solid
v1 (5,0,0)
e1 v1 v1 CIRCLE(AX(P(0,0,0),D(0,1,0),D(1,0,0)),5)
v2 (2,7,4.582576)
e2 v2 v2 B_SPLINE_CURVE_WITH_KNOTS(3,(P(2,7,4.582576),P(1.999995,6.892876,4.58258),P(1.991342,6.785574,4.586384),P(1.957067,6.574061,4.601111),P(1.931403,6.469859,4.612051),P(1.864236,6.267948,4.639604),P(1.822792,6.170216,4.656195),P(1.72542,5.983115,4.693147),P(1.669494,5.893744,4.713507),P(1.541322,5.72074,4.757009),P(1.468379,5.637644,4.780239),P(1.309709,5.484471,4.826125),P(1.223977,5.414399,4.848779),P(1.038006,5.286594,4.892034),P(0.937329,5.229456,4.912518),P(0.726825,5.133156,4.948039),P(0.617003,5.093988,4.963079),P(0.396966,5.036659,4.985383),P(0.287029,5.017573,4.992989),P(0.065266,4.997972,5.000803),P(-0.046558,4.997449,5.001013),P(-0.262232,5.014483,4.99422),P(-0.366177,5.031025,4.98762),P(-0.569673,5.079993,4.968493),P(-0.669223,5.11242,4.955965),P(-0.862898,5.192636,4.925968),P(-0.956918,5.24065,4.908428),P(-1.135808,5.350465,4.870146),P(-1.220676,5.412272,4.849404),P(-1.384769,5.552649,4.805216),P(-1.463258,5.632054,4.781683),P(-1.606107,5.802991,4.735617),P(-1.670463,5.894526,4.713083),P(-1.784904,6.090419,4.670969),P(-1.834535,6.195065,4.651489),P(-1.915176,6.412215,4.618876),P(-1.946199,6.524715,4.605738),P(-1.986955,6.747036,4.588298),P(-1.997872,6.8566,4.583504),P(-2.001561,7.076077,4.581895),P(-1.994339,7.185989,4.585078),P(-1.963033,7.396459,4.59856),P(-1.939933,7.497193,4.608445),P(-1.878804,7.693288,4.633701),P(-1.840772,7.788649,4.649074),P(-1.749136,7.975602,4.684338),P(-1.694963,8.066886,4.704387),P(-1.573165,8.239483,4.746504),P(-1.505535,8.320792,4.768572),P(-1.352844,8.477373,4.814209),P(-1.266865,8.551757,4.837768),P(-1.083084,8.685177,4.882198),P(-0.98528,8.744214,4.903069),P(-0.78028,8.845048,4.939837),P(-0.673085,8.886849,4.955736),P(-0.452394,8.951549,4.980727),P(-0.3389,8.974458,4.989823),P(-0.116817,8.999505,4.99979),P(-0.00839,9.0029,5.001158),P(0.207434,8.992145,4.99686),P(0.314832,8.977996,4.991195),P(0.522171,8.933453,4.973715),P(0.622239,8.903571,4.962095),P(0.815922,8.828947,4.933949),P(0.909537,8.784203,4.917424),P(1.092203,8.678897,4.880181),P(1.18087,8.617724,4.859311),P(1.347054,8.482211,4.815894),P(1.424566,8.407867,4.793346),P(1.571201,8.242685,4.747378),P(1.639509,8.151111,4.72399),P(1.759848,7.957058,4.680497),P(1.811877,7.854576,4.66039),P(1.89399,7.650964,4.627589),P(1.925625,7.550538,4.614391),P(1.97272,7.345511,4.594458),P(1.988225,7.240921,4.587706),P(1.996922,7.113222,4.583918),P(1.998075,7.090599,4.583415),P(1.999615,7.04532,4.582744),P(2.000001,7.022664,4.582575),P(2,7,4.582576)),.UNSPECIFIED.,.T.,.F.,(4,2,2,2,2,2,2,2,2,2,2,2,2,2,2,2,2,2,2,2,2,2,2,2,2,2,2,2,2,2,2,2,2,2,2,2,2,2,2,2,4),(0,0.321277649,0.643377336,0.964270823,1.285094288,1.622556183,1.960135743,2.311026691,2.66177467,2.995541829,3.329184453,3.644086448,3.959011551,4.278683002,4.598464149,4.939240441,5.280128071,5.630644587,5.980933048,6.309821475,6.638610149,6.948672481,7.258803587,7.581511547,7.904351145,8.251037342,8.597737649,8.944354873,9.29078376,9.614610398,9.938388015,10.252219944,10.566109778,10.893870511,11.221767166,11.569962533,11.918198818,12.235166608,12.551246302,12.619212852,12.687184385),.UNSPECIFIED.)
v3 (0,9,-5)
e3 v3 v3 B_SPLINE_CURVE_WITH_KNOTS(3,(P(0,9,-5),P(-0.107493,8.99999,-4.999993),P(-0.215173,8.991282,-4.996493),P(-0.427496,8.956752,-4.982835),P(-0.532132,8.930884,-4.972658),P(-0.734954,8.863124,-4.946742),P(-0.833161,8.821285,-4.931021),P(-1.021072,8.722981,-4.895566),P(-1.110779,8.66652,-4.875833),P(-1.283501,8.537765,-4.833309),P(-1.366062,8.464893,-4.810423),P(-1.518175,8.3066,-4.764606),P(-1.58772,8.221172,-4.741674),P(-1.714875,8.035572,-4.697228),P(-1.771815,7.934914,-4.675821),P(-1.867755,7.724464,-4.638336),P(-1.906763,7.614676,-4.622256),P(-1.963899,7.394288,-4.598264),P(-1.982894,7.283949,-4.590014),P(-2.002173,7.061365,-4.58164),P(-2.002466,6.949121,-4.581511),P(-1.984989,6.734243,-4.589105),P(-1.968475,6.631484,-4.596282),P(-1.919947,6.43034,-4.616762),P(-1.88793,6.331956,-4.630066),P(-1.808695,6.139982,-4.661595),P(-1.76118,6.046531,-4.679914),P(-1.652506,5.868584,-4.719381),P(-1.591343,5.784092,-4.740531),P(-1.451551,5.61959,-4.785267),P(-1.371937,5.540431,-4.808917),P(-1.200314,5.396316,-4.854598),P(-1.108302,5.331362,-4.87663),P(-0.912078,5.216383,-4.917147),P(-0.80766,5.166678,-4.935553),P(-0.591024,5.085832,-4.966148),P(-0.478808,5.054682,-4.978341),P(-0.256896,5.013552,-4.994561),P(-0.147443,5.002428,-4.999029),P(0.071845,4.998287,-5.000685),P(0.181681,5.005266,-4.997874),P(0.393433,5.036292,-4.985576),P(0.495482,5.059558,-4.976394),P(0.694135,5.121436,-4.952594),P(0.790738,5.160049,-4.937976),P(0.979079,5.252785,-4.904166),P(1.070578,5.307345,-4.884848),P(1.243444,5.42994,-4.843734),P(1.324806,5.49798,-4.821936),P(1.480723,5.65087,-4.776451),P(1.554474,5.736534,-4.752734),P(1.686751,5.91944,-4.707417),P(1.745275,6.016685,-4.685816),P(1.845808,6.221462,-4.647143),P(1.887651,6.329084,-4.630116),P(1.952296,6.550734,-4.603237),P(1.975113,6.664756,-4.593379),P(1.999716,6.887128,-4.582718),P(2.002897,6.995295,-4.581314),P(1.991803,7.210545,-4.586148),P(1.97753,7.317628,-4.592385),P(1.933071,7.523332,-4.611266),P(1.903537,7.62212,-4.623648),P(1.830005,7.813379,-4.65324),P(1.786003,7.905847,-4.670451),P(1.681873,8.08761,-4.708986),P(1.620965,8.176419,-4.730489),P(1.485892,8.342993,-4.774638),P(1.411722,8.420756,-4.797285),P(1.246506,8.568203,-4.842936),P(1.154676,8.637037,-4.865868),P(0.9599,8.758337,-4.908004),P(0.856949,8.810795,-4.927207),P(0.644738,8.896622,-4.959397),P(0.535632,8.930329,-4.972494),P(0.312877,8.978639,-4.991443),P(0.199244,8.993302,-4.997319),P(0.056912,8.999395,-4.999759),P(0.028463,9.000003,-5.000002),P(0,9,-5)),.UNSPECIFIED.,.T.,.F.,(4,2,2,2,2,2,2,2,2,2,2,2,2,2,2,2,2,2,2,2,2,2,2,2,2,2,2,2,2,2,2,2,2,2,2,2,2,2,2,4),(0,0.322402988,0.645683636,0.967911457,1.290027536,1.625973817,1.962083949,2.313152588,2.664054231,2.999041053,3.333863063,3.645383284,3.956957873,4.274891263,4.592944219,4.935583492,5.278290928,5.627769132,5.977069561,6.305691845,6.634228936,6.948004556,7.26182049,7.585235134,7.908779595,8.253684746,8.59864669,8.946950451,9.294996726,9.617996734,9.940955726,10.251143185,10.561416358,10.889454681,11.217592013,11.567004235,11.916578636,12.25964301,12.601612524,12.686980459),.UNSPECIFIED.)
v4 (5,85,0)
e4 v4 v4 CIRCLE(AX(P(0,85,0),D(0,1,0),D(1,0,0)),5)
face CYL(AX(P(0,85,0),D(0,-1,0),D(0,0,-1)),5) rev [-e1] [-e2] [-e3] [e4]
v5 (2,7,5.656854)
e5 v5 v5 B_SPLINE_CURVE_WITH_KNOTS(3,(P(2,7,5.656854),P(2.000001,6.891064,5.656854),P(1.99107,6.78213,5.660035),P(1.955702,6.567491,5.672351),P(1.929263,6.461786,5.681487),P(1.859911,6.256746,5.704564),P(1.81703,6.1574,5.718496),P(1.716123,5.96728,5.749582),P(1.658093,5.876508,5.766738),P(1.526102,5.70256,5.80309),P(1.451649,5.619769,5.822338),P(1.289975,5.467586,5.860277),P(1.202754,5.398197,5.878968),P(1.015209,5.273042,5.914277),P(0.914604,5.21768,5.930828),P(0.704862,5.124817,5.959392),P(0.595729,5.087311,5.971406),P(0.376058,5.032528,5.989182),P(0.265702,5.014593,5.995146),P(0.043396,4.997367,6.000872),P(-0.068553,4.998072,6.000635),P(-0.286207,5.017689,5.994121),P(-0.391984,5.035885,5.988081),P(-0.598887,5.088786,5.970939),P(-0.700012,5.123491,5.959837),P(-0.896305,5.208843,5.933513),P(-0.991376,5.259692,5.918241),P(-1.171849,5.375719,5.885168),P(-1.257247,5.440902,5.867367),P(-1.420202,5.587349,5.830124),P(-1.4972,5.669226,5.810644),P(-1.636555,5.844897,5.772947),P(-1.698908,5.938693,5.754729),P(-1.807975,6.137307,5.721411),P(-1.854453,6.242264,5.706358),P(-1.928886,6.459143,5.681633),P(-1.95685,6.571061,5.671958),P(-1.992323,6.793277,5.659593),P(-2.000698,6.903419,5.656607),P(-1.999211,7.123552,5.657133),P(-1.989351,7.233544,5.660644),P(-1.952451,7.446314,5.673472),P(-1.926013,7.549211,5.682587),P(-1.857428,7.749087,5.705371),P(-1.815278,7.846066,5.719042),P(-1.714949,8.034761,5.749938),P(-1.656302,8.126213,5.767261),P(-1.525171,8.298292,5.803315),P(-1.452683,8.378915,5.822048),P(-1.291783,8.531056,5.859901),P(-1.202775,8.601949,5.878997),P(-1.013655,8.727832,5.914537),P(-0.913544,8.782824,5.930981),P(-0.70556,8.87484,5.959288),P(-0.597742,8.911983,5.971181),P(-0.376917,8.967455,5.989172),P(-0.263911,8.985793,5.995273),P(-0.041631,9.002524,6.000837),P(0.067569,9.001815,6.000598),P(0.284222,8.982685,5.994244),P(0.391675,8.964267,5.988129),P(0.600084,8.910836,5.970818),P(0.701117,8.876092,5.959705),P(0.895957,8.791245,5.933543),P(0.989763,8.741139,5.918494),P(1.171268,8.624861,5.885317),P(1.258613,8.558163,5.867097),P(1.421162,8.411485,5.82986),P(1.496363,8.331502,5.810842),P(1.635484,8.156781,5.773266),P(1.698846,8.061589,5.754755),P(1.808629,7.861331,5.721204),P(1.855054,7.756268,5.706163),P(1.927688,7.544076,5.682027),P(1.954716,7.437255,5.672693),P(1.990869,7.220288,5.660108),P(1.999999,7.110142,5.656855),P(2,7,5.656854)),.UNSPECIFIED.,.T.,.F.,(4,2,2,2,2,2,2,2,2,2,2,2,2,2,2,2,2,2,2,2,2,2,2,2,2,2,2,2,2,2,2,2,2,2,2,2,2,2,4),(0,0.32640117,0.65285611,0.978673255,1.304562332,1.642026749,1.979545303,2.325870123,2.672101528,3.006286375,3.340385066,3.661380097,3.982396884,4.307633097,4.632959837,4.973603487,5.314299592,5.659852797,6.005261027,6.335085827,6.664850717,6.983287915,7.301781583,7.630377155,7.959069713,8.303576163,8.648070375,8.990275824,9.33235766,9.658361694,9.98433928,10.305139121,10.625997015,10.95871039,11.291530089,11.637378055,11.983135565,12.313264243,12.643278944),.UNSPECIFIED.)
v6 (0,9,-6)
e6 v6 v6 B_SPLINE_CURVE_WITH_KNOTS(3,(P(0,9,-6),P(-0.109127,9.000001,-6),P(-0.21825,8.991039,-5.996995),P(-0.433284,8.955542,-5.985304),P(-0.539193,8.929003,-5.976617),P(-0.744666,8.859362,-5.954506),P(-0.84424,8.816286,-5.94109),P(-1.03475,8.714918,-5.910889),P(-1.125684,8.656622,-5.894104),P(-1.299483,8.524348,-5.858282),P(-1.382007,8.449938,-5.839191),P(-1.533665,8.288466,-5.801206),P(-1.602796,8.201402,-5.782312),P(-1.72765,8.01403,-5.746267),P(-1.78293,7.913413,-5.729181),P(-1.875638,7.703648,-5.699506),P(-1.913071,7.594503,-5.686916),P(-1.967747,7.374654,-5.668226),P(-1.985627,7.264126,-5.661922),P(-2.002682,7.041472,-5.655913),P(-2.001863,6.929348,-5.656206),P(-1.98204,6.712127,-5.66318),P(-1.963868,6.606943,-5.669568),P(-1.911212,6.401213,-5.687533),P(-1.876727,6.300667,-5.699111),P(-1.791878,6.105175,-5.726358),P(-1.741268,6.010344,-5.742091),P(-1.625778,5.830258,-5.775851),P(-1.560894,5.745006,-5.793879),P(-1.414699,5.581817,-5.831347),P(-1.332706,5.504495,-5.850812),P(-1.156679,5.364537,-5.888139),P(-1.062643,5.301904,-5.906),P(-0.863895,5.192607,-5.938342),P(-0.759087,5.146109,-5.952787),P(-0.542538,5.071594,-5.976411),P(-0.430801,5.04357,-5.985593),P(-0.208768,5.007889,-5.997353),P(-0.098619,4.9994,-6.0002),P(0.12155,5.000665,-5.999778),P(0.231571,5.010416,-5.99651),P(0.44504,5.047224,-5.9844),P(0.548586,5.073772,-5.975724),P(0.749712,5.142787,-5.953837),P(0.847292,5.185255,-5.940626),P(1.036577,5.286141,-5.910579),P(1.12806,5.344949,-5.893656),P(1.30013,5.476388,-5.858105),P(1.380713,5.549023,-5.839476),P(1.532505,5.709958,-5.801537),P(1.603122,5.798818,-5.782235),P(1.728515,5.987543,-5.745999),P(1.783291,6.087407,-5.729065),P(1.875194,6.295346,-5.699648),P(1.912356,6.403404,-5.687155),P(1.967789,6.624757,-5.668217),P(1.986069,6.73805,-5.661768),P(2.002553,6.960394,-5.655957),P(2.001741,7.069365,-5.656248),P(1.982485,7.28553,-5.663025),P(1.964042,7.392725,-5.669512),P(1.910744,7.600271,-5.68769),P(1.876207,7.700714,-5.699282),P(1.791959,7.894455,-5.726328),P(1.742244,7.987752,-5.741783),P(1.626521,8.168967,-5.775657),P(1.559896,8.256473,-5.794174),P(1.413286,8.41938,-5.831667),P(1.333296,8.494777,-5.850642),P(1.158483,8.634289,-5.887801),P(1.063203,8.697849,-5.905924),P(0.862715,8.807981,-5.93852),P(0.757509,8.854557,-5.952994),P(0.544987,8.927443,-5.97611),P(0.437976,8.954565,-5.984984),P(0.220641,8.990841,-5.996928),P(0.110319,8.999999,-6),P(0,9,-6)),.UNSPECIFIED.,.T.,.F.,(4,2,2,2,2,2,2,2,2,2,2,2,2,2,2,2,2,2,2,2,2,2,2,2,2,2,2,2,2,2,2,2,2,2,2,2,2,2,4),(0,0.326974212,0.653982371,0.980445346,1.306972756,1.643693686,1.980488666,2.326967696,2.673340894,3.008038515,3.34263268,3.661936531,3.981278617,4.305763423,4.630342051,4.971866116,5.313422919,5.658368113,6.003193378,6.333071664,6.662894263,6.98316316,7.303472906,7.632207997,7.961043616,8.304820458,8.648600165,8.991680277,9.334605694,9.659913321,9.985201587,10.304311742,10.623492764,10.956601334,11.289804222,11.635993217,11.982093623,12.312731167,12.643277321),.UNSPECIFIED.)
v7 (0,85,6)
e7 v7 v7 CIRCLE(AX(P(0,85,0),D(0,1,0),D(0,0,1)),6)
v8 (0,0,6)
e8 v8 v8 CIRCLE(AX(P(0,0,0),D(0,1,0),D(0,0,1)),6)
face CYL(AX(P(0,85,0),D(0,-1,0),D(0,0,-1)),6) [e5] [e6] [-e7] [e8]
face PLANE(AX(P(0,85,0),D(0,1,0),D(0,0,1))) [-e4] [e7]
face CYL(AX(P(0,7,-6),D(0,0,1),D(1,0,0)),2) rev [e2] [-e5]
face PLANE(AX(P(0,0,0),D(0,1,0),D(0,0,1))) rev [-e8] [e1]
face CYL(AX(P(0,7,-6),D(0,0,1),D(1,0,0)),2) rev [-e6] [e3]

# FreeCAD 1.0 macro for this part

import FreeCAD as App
import Part
import Sketcher
from FreeCAD import Vector
Q = App.Units.Quantity

doc = App.newDocument("Part")
params = doc.addObject("Spreadsheet::Sheet", "Params")
for row, (alias, value) in enumerate([
    ("sketch1_diameter", "12 mm"),
    ("sketch1_diameter2", "10 mm"),
    ("pad1_length", "85 mm"),
    ("sketch2_diameter", "4 mm"),
], start=1):
    params.set(f"A{row}", alias)
    params.set(f"B{row}", "=" + value)
    params.setAlias(f"B{row}", alias)

body = doc.addObject("PartDesign::Body", "Body")

# Sketch on XZ plane
sketch1 = body.newObject("Sketcher::SketchObject", "Sketch")
sketch1.AttachmentSupport = (doc.getObject("XZ_Plane"), [""])
sketch1.MapMode = "FlatFace"
sketch1.addGeometry(Part.Circle(Vector(0, 0, 0), Vector(0, 0, 1), 6), False)
sketch1.addGeometry(Part.Circle(Vector(0, 0, 0), Vector(0, 0, 1), 5), False)
sketch1.addConstraint(Sketcher.Constraint("Coincident", 0, 3, -1, 1))
sketch1.addConstraint(Sketcher.Constraint("Coincident", 1, 3, -1, 1))
sketch1.addConstraint(Sketcher.Constraint("Diameter", 0, Q("12 mm")))
sketch1.addConstraint(Sketcher.Constraint("Diameter", 1, Q("10 mm")))
sketch1.setExpression("Constraints[2]", "Params.sketch1_diameter")
sketch1.setExpression("Constraints[3]", "Params.sketch1_diameter2")
pad1 = body.newObject("PartDesign::Pad", "Pad")
pad1.Profile = sketch1
pad1.setExpression("Length", "Params.pad1_length")
pad1.Reversed = True

# Sketch on XY plane
sketch2 = body.newObject("Sketcher::SketchObject", "Sketch001")
sketch2.AttachmentSupport = (doc.getObject("XY_Plane"), [""])
sketch2.MapMode = "FlatFace"
sketch2.addGeometry(Part.Circle(Vector(0, 7, 0), Vector(0, 0, 1), 2), False)
sketch2.addConstraint(Sketcher.Constraint("PointOnObject", 0, 3, -2))
sketch2.addConstraint(Sketcher.Constraint("Diameter", 0, Q("4 mm")))
sketch2.addConstraint(Sketcher.Constraint("DistanceY", -1, 1, 0, 3, Q("7 mm")))
sketch2.setExpression("Constraints[1]", "Params.sketch2_diameter")
pocket1 = body.newObject("PartDesign::Pocket", "Pocket")
pocket1.Profile = sketch2
pocket1.Type = "ThroughAll"
pocket1.Midplane = True

doc.recompute()
